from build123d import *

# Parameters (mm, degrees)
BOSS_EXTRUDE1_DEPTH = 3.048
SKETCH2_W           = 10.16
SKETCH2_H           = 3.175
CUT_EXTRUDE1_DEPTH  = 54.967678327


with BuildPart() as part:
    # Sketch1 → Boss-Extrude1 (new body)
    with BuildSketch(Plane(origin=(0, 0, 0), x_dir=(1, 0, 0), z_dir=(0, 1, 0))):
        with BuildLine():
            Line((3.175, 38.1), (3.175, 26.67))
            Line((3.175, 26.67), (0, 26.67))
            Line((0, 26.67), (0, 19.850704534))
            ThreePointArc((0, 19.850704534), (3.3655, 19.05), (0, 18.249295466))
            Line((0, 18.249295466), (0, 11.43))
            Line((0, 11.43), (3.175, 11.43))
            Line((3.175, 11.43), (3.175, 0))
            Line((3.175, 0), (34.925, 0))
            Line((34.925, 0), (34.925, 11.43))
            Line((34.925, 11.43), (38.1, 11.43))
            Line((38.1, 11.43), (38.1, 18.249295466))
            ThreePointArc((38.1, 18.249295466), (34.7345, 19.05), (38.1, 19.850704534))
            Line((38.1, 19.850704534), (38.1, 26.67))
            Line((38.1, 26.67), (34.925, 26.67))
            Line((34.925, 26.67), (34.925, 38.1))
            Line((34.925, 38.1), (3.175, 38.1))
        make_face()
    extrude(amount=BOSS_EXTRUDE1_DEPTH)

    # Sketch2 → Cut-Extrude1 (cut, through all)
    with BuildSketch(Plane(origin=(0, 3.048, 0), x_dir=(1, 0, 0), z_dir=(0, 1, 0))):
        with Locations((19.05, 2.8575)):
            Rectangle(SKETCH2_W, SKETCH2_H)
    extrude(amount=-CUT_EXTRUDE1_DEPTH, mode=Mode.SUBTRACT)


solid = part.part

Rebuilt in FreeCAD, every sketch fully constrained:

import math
import FreeCAD as App
import Part
import Sketcher
from FreeCAD import Vector
Q = App.Units.Quantity


def add_polygon(sketch, points):
    """Adds a closed chain of lines whose ends are joined by coincident constraints."""
    first, n = sketch.GeometryCount, len(points)
    for a, b in zip(points, points[1:] + points[:1]):
        sketch.addGeometry(Part.LineSegment(App.Vector(*a, 0), App.Vector(*b, 0)), False)
    for i in range(n):
        sketch.addConstraint(Sketcher.Constraint("Coincident", first + i, 2, first + (i + 1) % n, 1))

doc = App.newDocument("Part")
body = doc.addObject("PartDesign::Body", "Body")

# Sketch on XZ plane
sketch1 = doc.addObject("Sketcher::SketchObject", "Sketch")
body.addObject(sketch1)
sketch1.AttachmentSupport = (doc.XZ_Plane, [""])
sketch1.MapMode = "FlatFace"
sketch1.addGeometry(Part.LineSegment(Vector(3.2, -38.1, 0), Vector(3.2, -26.7, 0)), False)
sketch1.addGeometry(Part.LineSegment(Vector(3.2, -26.7, 0), Vector(0, -26.7, 0)), False)
sketch1.addGeometry(Part.LineSegment(Vector(0, -26.7, 0), Vector(0, -19.9, 0)), False)
sketch1.addGeometry(Part.ArcOfCircle(Part.Circle(Vector(1.6, -19.1, 0), Vector(0, 0, 1), 1.8), math.radians(-153), math.radians(153)), False)
sketch1.addGeometry(Part.LineSegment(Vector(0, -18.2, 0), Vector(0, -11.4, 0)), False)
sketch1.addGeometry(Part.LineSegment(Vector(0, -11.4, 0), Vector(3.2, -11.4, 0)), False)
sketch1.addGeometry(Part.LineSegment(Vector(3.2, -11.4, 0), Vector(3.2, 0, 0)), False)
sketch1.addGeometry(Part.LineSegment(Vector(3.2, 0, 0), Vector(34.9, 0, 0)), False)
sketch1.addGeometry(Part.LineSegment(Vector(34.9, 0, 0), Vector(34.9, -11.4, 0)), False)
sketch1.addGeometry(Part.LineSegment(Vector(34.9, -11.4, 0), Vector(38.1, -11.4, 0)), False)
sketch1.addGeometry(Part.LineSegment(Vector(38.1, -11.4, 0), Vector(38.1, -18.2, 0)), False)
sketch1.addGeometry(Part.ArcOfCircle(Part.Circle(Vector(36.5, -19.1, 0), Vector(0, 0, 1), 1.8), math.radians(27), math.radians(333)), False)
sketch1.addGeometry(Part.LineSegment(Vector(38.1, -19.9, 0), Vector(38.1, -26.7, 0)), False)
sketch1.addGeometry(Part.LineSegment(Vector(38.1, -26.7, 0), Vector(34.9, -26.7, 0)), False)
sketch1.addGeometry(Part.LineSegment(Vector(34.9, -26.7, 0), Vector(34.9, -38.1, 0)), False)
sketch1.addGeometry(Part.LineSegment(Vector(34.9, -38.1, 0), Vector(3.2, -38.1, 0)), False)
sketch1.addConstraint(Sketcher.Constraint("Coincident", 0, 2, 1, 1))
sketch1.addConstraint(Sketcher.Constraint("Coincident", 1, 2, 2, 1))
sketch1.addConstraint(Sketcher.Constraint("Coincident", 2, 2, 3, 1))
sketch1.addConstraint(Sketcher.Constraint("Coincident", 3, 2, 4, 1))
sketch1.addConstraint(Sketcher.Constraint("Coincident", 4, 2, 5, 1))
sketch1.addConstraint(Sketcher.Constraint("Coincident", 5, 2, 6, 1))
sketch1.addConstraint(Sketcher.Constraint("Coincident", 6, 2, 7, 1))
sketch1.addConstraint(Sketcher.Constraint("Coincident", 7, 2, 8, 1))
sketch1.addConstraint(Sketcher.Constraint("Coincident", 8, 2, 9, 1))
sketch1.addConstraint(Sketcher.Constraint("Coincident", 9, 2, 10, 1))
sketch1.addConstraint(Sketcher.Constraint("Coincident", 10, 2, 11, 1))
sketch1.addConstraint(Sketcher.Constraint("Coincident", 11, 2, 12, 1))
sketch1.addConstraint(Sketcher.Constraint("Coincident", 12, 2, 13, 1))
sketch1.addConstraint(Sketcher.Constraint("Coincident", 13, 2, 14, 1))
sketch1.addConstraint(Sketcher.Constraint("Coincident", 14, 2, 15, 1))
sketch1.addConstraint(Sketcher.Constraint("Coincident", 15, 2, 0, 1))
sketch1.addConstraint(Sketcher.Constraint("Vertical", 0))
sketch1.addConstraint(Sketcher.Constraint("Horizontal", 1))
sketch1.addConstraint(Sketcher.Constraint("Vertical", 2))
sketch1.addConstraint(Sketcher.Constraint("Vertical", 4))
sketch1.addConstraint(Sketcher.Constraint("Horizontal", 5))
sketch1.addConstraint(Sketcher.Constraint("Vertical", 6))
sketch1.addConstraint(Sketcher.Constraint("Horizontal", 7))
sketch1.addConstraint(Sketcher.Constraint("Vertical", 8))
sketch1.addConstraint(Sketcher.Constraint("Horizontal", 9))
sketch1.addConstraint(Sketcher.Constraint("Vertical", 10))
sketch1.addConstraint(Sketcher.Constraint("Vertical", 12))
sketch1.addConstraint(Sketcher.Constraint("Horizontal", 13))
sketch1.addConstraint(Sketcher.Constraint("Vertical", 14))
sketch1.addConstraint(Sketcher.Constraint("Horizontal", 15))
sketch1.addConstraint(Sketcher.Constraint("Equal", 3, 11))
sketch1.addConstraint(Sketcher.Constraint("PointOnObject", 1, 2, -2))
sketch1.addConstraint(Sketcher.Constraint("PointOnObject", 3, 2, -2))
sketch1.addConstraint(Sketcher.Constraint("PointOnObject", 6, 2, -1))
sketch1.addConstraint(Sketcher.Constraint("Horizontal", 3, 3, 11, 3))
sketch1.addConstraint(Sketcher.Constraint("Horizontal", 5, 2, 8, 2))
sketch1.addConstraint(Sketcher.Constraint("Horizontal", 3, 2, 10, 2))
sketch1.addConstraint(Sketcher.Constraint("Horizontal", 2, 2, 11, 2))
sketch1.addConstraint(Sketcher.Constraint("Horizontal", 1, 2, 12, 2))
sketch1.addConstraint(Sketcher.Constraint("Vertical", 0, 2, 5, 2))
sketch1.addConstraint(Sketcher.Constraint("Vertical", 8, 2, 13, 2))
sketch1.addConstraint(Sketcher.Constraint("Equal", 5, 9))
sketch1.addConstraint(Sketcher.Constraint("Equal", 2, 4))
sketch1.addConstraint(Sketcher.Constraint("Equal", 0, 6))
sketch1.addConstraint(Sketcher.Constraint("Radius", 3, Q("0.07 in")))
sketch1.addConstraint(Sketcher.Constraint("DistanceX", 7, 1, 7, 2, Q("1.25 in")))
sketch1.addConstraint(Sketcher.Constraint("DistanceY", 0, 1, 0, 2, Q("0.45 in")))
sketch1.addConstraint(Sketcher.Constraint("DistanceX", -1, 1, 9, 2, Q("1.5 in")))
sketch1.addConstraint(Sketcher.Constraint("DistanceY", 14, 2, -1, 1, Q("1.5 in")))
sketch1.addConstraint(Sketcher.Constraint("DistanceX", -1, 1, 3, 3, Q("0.0625 in")))
pad1 = doc.addObject("PartDesign::Pad", "Pad")
body.addObject(pad1)
pad1.Profile = sketch1
pad1.Length = Q("0.12 in")
pad1.Reversed = True

# Sketch on XZ plane
sketch2 = doc.addObject("Sketcher::SketchObject", "Sketch001")
body.addObject(sketch2)
sketch2.AttachmentSupport = (doc.XZ_Plane, [""])
sketch2.MapMode = "FlatFace"
sketch2.AttachmentOffset = App.Placement(Vector(0, 0, -0.12 * 25.4), App.Rotation())
add_polygon(sketch2, [(14, -4.4), (14, -1.3), (24.1, -1.3), (24.1, -4.4)])  # lines 0-3
sketch2.addConstraint(Sketcher.Constraint("Vertical", 0))
sketch2.addConstraint(Sketcher.Constraint("Horizontal", 1))
sketch2.addConstraint(Sketcher.Constraint("Vertical", 2))
sketch2.addConstraint(Sketcher.Constraint("Horizontal", 3))
sketch2.addConstraint(Sketcher.Constraint("DistanceX", 1, 1, 1, 2, Q("0.4 in")))
sketch2.addConstraint(Sketcher.Constraint("DistanceY", 0, 1, 0, 2, Q("0.125 in")))
sketch2.addConstraint(Sketcher.Constraint("DistanceX", -1, 1, 0, 2, Q("0.55 in")))
sketch2.addConstraint(Sketcher.Constraint("DistanceY", 0, 2, -1, 1, Q("0.05 in")))
pocket1 = doc.addObject("PartDesign::Pocket", "Pocket")
body.addObject(pocket1)
pocket1.Profile = sketch2
pocket1.Type = "ThroughAll"
pocket1.Reversed = True

doc.recompute()
